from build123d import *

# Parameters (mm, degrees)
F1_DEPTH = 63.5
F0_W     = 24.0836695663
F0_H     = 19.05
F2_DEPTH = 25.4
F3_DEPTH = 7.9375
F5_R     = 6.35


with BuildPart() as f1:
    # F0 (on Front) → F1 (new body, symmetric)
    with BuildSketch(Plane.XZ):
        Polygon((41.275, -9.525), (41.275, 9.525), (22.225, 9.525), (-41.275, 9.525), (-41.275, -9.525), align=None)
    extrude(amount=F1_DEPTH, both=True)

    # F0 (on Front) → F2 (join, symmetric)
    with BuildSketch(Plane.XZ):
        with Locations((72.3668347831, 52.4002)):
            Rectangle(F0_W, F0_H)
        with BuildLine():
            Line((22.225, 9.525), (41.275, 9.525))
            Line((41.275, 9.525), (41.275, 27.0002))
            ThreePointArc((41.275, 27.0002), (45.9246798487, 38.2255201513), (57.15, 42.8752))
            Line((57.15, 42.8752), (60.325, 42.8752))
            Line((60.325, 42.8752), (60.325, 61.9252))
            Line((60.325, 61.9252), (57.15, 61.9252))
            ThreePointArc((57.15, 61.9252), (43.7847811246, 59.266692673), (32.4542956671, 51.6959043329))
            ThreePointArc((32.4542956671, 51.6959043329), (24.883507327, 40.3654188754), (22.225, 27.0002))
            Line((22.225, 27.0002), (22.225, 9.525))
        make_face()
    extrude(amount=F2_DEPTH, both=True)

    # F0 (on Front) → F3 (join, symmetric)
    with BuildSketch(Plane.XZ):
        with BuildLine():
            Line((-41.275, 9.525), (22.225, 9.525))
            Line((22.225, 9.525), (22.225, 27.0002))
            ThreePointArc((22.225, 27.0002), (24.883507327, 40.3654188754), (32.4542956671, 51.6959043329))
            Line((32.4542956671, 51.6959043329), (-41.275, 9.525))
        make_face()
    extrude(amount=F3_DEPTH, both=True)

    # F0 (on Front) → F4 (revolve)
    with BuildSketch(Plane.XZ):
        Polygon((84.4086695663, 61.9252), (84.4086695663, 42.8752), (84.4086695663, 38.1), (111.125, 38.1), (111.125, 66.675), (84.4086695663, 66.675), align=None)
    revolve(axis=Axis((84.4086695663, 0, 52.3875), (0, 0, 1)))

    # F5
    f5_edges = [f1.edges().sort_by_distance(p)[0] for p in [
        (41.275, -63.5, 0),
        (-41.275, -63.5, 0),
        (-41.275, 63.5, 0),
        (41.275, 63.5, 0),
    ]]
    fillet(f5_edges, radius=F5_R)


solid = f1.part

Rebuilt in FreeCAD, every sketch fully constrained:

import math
import FreeCAD as App
import Part
import Sketcher
from FreeCAD import Vector
Q = App.Units.Quantity


def edges_at(feature, points):
    """Names of the edges that pass closest to the given points."""
    edges = feature.Shape.Edges
    near = lambda p: min(range(len(edges)), key=lambda i: edges[i].distToShape(Part.Vertex(*p))[0])
    return sorted({f"Edge{near(p) + 1}" for p in points})


def add_polygon(sketch, points):
    """Adds a closed chain of lines whose ends are joined by coincident constraints."""
    first, n = sketch.GeometryCount, len(points)
    for a, b in zip(points, points[1:] + points[:1]):
        sketch.addGeometry(Part.LineSegment(App.Vector(*a, 0), App.Vector(*b, 0)), False)
    for i in range(n):
        sketch.addConstraint(Sketcher.Constraint("Coincident", first + i, 2, first + (i + 1) % n, 1))

doc = App.newDocument("Part")
body = doc.addObject("PartDesign::Body", "Body")

sketch1 = body.newObject("Sketcher::SketchObject", "Sketch")
sketch1.AttachmentSupport = (doc.getObject("XZ_Plane"), [""])
sketch1.MapMode = "FlatFace"
add_polygon(sketch1, [(41.275, -9.525), (41.275, 9.525), (-41.275, 9.525), (-41.275, -9.525)])
sketch1.addConstraint(Sketcher.Constraint("Vertical", 0))
sketch1.addConstraint(Sketcher.Constraint("Horizontal", 1))
sketch1.addConstraint(Sketcher.Constraint("Vertical", 2))
sketch1.addConstraint(Sketcher.Constraint("Horizontal", 3))
sketch1.addConstraint(Sketcher.Constraint("Symmetric", 0, 2, 2, 2, -1, 1))
sketch1.addConstraint(Sketcher.Constraint("DistanceX", 1, 2, 1, 1, Q("3.25 in")))
sketch1.addConstraint(Sketcher.Constraint("DistanceY", 0, 1, 0, 2, Q("0.75 in")))
pad1 = body.newObject("PartDesign::Pad", "Pad")
pad1.Profile = sketch1
pad1.Length = Q("5 in")
pad1.Midplane = True

sketch2 = body.newObject("Sketcher::SketchObject", "Sketch001")
sketch2.AttachmentSupport = (doc.getObject("XZ_Plane"), [""])
sketch2.MapMode = "FlatFace"
sketch2.addGeometry(Part.LineSegment(Vector(84.40867, 42.8752, 0), Vector(84.40867, 61.9252, 0)), False)
sketch2.addGeometry(Part.LineSegment(Vector(84.40867, 61.9252, 0), Vector(57.15, 61.9252, 0)), False)
sketch2.addGeometry(Part.ArcOfCircle(Part.Circle(Vector(57.15, 27.0002, 0), Vector(0, 0, 1), 34.925), math.radians(90), math.radians(135)), False)
sketch2.addGeometry(Part.ArcOfCircle(Part.Circle(Vector(57.15, 27.0002, 0), Vector(0, 0, 1), 34.925), math.radians(135), math.radians(180)), False)
sketch2.addGeometry(Part.LineSegment(Vector(22.225, 27.0002, 0), Vector(22.225, 9.525, 0)), False)
sketch2.addGeometry(Part.LineSegment(Vector(22.225, 9.525, 0), Vector(41.275, 9.525, 0)), False)
sketch2.addGeometry(Part.LineSegment(Vector(41.275, 9.525, 0), Vector(41.275, 27.0002, 0)), False)
sketch2.addGeometry(Part.ArcOfCircle(Part.Circle(Vector(57.15, 27.0002, 0), Vector(0, 0, 1), 15.875), math.radians(90), math.radians(180)), False)
sketch2.addGeometry(Part.LineSegment(Vector(57.15, 42.8752, 0), Vector(84.40867, 42.8752, 0)), False)
sketch2.addConstraint(Sketcher.Constraint("Coincident", 0, 2, 1, 1))
sketch2.addConstraint(Sketcher.Constraint("Tangent", 1, 2, 2, 1))
sketch2.addConstraint(Sketcher.Constraint("Tangent", 2, 2, 3, 1))
sketch2.addConstraint(Sketcher.Constraint("Tangent", 3, 2, 4, 1))
sketch2.addConstraint(Sketcher.Constraint("Coincident", 4, 2, 5, 1))
sketch2.addConstraint(Sketcher.Constraint("Coincident", 5, 2, 6, 1))
sketch2.addConstraint(Sketcher.Constraint("Tangent", 6, 2, 7, 2))
sketch2.addConstraint(Sketcher.Constraint("Tangent", 7, 1, 8, 1))
sketch2.addConstraint(Sketcher.Constraint("Coincident", 8, 2, 0, 1))
sketch2.addConstraint(Sketcher.Constraint("Vertical", 0))
sketch2.addConstraint(Sketcher.Constraint("Horizontal", 1))
sketch2.addConstraint(Sketcher.Constraint("Vertical", 4))
sketch2.addConstraint(Sketcher.Constraint("Horizontal", 5))
sketch2.addConstraint(Sketcher.Constraint("Vertical", 6))
sketch2.addConstraint(Sketcher.Constraint("Horizontal", 8))
sketch2.addConstraint(Sketcher.Constraint("Coincident", 7, 3, 2, 3))
sketch2.addConstraint(Sketcher.Constraint("Equal", 2, 3))
sketch2.addConstraint(Sketcher.Constraint("Radius", 2, Q("1.375 in")))
sketch2.addConstraint(Sketcher.Constraint("Radius", 7, Q("0.625 in")))
sketch2.addConstraint(Sketcher.Constraint("DistanceY", 4, 2, 4, 1, Q("0.688 in")))
sketch2.addConstraint(Sketcher.Constraint("DistanceX", -1, 1, 2, 3, Q("2.25 in")))
sketch2.addConstraint(Sketcher.Constraint("DistanceY", -1, 1, 2, 3, Q("1.063 in")))
sketch2.addConstraint(Sketcher.Constraint("DistanceX", 1, 2, 1, 1, Q("27.25867 mm")))
sketch2.addConstraint(Sketcher.Constraint("DistanceX", -1, 1, 2, 2, Q("32.454296 mm")))
pad2 = body.newObject("PartDesign::Pad", "Pad001")
pad2.Profile = sketch2
pad2.Length = Q("2 in")
pad2.Midplane = True

sketch3 = body.newObject("Sketcher::SketchObject", "Sketch002")
sketch3.AttachmentSupport = (doc.getObject("XZ_Plane"), [""])
sketch3.MapMode = "FlatFace"
sketch3.addGeometry(Part.LineSegment(Vector(-41.275, 9.525, 0), Vector(22.225, 9.525, 0)), False)
sketch3.addGeometry(Part.LineSegment(Vector(22.225, 9.525, 0), Vector(22.225, 27.0002, 0)), False)
sketch3.addGeometry(Part.ArcOfCircle(Part.Circle(Vector(57.15, 27.0002, 0), Vector(0, 0, 1), 34.925), math.radians(135), math.radians(180)), False)
sketch3.addGeometry(Part.LineSegment(Vector(32.454296, 51.695904, 0), Vector(-41.275, 9.525, 0)), False)
sketch3.addConstraint(Sketcher.Constraint("Coincident", 0, 2, 1, 1))
sketch3.addConstraint(Sketcher.Constraint("Tangent", 1, 2, 2, 2))
sketch3.addConstraint(Sketcher.Constraint("Coincident", 2, 1, 3, 1))
sketch3.addConstraint(Sketcher.Constraint("Coincident", 3, 2, 0, 1))
sketch3.addConstraint(Sketcher.Constraint("Horizontal", 0))
sketch3.addConstraint(Sketcher.Constraint("Vertical", 1))
sketch3.addConstraint(Sketcher.Constraint("DistanceX", 0, 1, 0, 2, Q("2.5 in")))
sketch3.addConstraint(Sketcher.Constraint("Radius", 2, Q("1.375 in")))
sketch3.addConstraint(Sketcher.Constraint("DistanceY", 1, 1, 1, 2, Q("0.688 in")))
sketch3.addConstraint(Sketcher.Constraint("DistanceX", -1, 1, 2, 3, Q("2.25 in")))
sketch3.addConstraint(Sketcher.Constraint("DistanceY", -1, 1, 2, 3, Q("1.063 in")))
sketch3.addConstraint(Sketcher.Constraint("Distance", 3, Q("84.93759 mm")))
pad3 = body.newObject("PartDesign::Pad", "Pad002")
pad3.Profile = sketch3
pad3.Length = Q("0.625 in")
pad3.Midplane = True

sketch4 = body.newObject("Sketcher::SketchObject", "Sketch003")
sketch4.AttachmentSupport = (doc.getObject("XZ_Plane"), [""])
sketch4.MapMode = "FlatFace"
add_polygon(sketch4, [(84.40867, 38.1), (111.125, 38.1), (111.125, 66.675), (84.40867, 66.675)])
sketch4.addGeometry(Part.LineSegment(Vector(84.40867, 38.1, 0), Vector(84.40867, 66.675, 0)), True)
sketch4.addConstraint(Sketcher.Constraint("Horizontal", 0))
sketch4.addConstraint(Sketcher.Constraint("Vertical", 1))
sketch4.addConstraint(Sketcher.Constraint("Horizontal", 2))
sketch4.addConstraint(Sketcher.Constraint("Vertical", 3))
sketch4.addConstraint(Sketcher.Constraint("Vertical", 4))
sketch4.addConstraint(Sketcher.Constraint("Coincident", 4, 1, 3, 2))
sketch4.addConstraint(Sketcher.Constraint("Horizontal", 1, 2, 4, 2))
sketch4.addConstraint(Sketcher.Constraint("DistanceY", -1, 1, 0, 2, Q("1.5 in")))
sketch4.addConstraint(Sketcher.Constraint("DistanceY", 1, 1, 1, 2, Q("1.125 in")))
sketch4.addConstraint(Sketcher.Constraint("DistanceX", -1, 1, 0, 2, Q("4.375 in")))
sketch4.addConstraint(Sketcher.Constraint("DistanceX", 0, 1, 0, 2, Q("26.71633 mm")))
revolution = body.newObject("PartDesign::Revolution", "Revolution")
revolution.Profile = sketch4
revolution.ReferenceAxis = (sketch4, ["Axis0"])
revolution.Angle = 360
doc.recompute()

fillet = body.newObject("PartDesign::Fillet", "Fillet")
fillet.Base = (revolution, edges_at(revolution, [
    (41.275, -63.5, 0),
    (-41.275, -63.5, 0),
    (-41.275, 63.5, 0),
    (41.275, 63.5, 0),
]))
fillet.Radius = Q("0.25 in")

doc.recompute()
